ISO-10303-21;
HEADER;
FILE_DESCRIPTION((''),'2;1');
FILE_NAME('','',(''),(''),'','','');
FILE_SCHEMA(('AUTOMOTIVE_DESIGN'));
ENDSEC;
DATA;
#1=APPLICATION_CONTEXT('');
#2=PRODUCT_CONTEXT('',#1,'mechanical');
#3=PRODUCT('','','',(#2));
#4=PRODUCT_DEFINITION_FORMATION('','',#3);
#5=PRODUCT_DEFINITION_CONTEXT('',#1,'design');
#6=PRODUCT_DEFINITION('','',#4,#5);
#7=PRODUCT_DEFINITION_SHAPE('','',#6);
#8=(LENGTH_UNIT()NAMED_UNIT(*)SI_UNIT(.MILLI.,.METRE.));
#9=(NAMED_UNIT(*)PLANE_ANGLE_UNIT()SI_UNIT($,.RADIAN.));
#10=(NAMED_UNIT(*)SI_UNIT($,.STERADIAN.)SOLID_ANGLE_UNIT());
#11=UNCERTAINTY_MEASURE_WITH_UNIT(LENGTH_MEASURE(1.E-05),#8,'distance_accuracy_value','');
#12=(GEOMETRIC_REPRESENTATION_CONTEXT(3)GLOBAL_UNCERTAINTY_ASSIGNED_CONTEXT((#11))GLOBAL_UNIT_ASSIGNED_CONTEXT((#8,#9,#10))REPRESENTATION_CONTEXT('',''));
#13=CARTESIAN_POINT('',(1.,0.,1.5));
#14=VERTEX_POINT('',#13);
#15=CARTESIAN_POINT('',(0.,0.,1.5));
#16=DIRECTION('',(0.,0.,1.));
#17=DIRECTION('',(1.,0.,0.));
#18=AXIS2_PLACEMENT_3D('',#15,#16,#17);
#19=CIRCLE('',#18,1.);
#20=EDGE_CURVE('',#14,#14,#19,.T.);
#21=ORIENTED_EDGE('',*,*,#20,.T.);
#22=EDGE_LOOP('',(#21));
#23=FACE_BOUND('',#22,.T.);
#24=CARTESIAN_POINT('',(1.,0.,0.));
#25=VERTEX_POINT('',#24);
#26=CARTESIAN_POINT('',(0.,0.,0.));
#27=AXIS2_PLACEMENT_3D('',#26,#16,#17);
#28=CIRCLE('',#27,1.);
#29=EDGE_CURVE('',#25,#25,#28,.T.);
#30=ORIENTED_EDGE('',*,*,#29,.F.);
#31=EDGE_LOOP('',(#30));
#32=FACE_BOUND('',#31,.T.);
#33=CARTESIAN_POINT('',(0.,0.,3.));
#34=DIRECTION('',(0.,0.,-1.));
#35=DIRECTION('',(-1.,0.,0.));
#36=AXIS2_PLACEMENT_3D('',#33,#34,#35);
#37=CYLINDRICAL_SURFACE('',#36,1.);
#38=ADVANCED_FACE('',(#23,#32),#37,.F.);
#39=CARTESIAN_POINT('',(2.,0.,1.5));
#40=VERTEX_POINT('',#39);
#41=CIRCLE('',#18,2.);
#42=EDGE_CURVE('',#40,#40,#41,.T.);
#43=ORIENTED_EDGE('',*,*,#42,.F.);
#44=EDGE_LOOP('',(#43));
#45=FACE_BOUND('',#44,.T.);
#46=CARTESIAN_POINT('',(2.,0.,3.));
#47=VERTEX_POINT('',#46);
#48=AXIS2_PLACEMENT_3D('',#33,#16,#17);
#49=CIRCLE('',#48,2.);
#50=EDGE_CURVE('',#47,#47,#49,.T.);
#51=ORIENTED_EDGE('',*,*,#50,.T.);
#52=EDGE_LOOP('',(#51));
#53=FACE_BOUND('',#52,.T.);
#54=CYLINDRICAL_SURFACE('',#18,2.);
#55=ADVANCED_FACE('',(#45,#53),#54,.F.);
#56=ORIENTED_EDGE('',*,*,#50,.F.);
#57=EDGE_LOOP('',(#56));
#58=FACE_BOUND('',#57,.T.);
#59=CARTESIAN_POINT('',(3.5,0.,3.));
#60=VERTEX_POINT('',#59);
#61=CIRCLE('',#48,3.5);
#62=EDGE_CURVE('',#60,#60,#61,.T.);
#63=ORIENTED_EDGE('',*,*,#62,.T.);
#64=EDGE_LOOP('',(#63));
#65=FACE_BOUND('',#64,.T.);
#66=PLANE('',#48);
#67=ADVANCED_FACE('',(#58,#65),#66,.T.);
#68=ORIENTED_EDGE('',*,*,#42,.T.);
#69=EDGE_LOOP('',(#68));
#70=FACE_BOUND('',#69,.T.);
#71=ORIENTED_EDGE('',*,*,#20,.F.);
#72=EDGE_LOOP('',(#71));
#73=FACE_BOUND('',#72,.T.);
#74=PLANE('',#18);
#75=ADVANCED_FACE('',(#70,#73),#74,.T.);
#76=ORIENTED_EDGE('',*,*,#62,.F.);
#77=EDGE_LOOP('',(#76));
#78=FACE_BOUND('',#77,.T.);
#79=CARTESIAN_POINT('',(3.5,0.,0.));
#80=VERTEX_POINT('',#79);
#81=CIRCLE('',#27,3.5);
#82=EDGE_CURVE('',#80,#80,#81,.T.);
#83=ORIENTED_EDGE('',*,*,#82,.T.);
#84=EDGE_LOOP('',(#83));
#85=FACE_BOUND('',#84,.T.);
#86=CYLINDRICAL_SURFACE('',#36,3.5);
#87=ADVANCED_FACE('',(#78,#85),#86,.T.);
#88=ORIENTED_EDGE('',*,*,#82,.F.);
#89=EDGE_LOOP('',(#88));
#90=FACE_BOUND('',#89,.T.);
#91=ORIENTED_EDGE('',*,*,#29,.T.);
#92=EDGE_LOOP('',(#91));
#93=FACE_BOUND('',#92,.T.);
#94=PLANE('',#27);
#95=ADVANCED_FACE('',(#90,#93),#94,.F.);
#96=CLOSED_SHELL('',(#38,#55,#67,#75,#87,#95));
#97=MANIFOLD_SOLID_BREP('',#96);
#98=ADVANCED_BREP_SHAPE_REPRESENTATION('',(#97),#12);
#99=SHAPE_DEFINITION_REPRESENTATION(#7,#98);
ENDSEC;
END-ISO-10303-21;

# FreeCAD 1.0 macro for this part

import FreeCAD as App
import Part
import Sketcher
Q = App.Units.Quantity

doc = App.newDocument("Part")
params = doc.addObject("Spreadsheet::Sheet", "Params")
for row, (alias, value) in enumerate([
    ("sketch1_diameter", "7 mm"),
    ("sketch1_diameter2", "2 mm"),
    ("pad1_length", "3 mm"),
    ("sketch2_diameter", "4 mm"),
    ("pocket1_length", "1.5 mm"),
], start=1):
    params.set(f"A{row}", alias)
    params.set(f"B{row}", "=" + value)
    params.setAlias(f"B{row}", alias)

body = doc.addObject("PartDesign::Body", "Body")

sketch1 = body.newObject("Sketcher::SketchObject", "Sketch")
sketch1.AttachmentSupport = (doc.getObject("XY_Plane"), [""])
sketch1.MapMode = "FlatFace"
sketch1.addGeometry([
    Part.Circle(App.Vector(0, 0, 0), App.Vector(0, 0, 1), 3.5),
    Part.Circle(App.Vector(0, 0, 0), App.Vector(0, 0, 1), 1),
], False)
sketch1.addConstraint([
    Sketcher.Constraint("Coincident", 0, 3, -1, 1),
    Sketcher.Constraint("Coincident", 1, 3, -1, 1),
    Sketcher.Constraint("Diameter", 0, Q("7 mm")),
    Sketcher.Constraint("Diameter", 1, Q("2 mm")),
])
sketch1.setExpression("Constraints[2]", "Params.sketch1_diameter")
sketch1.setExpression("Constraints[3]", "Params.sketch1_diameter2")
pad1 = body.newObject("PartDesign::Pad", "Pad")
pad1.Profile = sketch1
pad1.setExpression("Length", "Params.pad1_length")

sketch2 = body.newObject("Sketcher::SketchObject", "Sketch001")
sketch2.AttachmentSupport = (doc.getObject("XY_Plane"), [""])
sketch2.MapMode = "FlatFace"
sketch2.AttachmentOffset = App.Placement(App.Vector(0, 0, 3), App.Rotation())
sketch2.addGeometry(Part.Circle(App.Vector(0, 0, 0), App.Vector(0, 0, 1), 2), False)
sketch2.addConstraint([
    Sketcher.Constraint("Coincident", 0, 3, -1, 1),
    Sketcher.Constraint("Diameter", 0, Q("4 mm")),
])
sketch2.setExpression("Constraints[1]", "Params.sketch2_diameter")
pocket1 = body.newObject("PartDesign::Pocket", "Pocket")
pocket1.Profile = sketch2
pocket1.setExpression("Length", "Params.pocket1_length")

doc.recompute()
